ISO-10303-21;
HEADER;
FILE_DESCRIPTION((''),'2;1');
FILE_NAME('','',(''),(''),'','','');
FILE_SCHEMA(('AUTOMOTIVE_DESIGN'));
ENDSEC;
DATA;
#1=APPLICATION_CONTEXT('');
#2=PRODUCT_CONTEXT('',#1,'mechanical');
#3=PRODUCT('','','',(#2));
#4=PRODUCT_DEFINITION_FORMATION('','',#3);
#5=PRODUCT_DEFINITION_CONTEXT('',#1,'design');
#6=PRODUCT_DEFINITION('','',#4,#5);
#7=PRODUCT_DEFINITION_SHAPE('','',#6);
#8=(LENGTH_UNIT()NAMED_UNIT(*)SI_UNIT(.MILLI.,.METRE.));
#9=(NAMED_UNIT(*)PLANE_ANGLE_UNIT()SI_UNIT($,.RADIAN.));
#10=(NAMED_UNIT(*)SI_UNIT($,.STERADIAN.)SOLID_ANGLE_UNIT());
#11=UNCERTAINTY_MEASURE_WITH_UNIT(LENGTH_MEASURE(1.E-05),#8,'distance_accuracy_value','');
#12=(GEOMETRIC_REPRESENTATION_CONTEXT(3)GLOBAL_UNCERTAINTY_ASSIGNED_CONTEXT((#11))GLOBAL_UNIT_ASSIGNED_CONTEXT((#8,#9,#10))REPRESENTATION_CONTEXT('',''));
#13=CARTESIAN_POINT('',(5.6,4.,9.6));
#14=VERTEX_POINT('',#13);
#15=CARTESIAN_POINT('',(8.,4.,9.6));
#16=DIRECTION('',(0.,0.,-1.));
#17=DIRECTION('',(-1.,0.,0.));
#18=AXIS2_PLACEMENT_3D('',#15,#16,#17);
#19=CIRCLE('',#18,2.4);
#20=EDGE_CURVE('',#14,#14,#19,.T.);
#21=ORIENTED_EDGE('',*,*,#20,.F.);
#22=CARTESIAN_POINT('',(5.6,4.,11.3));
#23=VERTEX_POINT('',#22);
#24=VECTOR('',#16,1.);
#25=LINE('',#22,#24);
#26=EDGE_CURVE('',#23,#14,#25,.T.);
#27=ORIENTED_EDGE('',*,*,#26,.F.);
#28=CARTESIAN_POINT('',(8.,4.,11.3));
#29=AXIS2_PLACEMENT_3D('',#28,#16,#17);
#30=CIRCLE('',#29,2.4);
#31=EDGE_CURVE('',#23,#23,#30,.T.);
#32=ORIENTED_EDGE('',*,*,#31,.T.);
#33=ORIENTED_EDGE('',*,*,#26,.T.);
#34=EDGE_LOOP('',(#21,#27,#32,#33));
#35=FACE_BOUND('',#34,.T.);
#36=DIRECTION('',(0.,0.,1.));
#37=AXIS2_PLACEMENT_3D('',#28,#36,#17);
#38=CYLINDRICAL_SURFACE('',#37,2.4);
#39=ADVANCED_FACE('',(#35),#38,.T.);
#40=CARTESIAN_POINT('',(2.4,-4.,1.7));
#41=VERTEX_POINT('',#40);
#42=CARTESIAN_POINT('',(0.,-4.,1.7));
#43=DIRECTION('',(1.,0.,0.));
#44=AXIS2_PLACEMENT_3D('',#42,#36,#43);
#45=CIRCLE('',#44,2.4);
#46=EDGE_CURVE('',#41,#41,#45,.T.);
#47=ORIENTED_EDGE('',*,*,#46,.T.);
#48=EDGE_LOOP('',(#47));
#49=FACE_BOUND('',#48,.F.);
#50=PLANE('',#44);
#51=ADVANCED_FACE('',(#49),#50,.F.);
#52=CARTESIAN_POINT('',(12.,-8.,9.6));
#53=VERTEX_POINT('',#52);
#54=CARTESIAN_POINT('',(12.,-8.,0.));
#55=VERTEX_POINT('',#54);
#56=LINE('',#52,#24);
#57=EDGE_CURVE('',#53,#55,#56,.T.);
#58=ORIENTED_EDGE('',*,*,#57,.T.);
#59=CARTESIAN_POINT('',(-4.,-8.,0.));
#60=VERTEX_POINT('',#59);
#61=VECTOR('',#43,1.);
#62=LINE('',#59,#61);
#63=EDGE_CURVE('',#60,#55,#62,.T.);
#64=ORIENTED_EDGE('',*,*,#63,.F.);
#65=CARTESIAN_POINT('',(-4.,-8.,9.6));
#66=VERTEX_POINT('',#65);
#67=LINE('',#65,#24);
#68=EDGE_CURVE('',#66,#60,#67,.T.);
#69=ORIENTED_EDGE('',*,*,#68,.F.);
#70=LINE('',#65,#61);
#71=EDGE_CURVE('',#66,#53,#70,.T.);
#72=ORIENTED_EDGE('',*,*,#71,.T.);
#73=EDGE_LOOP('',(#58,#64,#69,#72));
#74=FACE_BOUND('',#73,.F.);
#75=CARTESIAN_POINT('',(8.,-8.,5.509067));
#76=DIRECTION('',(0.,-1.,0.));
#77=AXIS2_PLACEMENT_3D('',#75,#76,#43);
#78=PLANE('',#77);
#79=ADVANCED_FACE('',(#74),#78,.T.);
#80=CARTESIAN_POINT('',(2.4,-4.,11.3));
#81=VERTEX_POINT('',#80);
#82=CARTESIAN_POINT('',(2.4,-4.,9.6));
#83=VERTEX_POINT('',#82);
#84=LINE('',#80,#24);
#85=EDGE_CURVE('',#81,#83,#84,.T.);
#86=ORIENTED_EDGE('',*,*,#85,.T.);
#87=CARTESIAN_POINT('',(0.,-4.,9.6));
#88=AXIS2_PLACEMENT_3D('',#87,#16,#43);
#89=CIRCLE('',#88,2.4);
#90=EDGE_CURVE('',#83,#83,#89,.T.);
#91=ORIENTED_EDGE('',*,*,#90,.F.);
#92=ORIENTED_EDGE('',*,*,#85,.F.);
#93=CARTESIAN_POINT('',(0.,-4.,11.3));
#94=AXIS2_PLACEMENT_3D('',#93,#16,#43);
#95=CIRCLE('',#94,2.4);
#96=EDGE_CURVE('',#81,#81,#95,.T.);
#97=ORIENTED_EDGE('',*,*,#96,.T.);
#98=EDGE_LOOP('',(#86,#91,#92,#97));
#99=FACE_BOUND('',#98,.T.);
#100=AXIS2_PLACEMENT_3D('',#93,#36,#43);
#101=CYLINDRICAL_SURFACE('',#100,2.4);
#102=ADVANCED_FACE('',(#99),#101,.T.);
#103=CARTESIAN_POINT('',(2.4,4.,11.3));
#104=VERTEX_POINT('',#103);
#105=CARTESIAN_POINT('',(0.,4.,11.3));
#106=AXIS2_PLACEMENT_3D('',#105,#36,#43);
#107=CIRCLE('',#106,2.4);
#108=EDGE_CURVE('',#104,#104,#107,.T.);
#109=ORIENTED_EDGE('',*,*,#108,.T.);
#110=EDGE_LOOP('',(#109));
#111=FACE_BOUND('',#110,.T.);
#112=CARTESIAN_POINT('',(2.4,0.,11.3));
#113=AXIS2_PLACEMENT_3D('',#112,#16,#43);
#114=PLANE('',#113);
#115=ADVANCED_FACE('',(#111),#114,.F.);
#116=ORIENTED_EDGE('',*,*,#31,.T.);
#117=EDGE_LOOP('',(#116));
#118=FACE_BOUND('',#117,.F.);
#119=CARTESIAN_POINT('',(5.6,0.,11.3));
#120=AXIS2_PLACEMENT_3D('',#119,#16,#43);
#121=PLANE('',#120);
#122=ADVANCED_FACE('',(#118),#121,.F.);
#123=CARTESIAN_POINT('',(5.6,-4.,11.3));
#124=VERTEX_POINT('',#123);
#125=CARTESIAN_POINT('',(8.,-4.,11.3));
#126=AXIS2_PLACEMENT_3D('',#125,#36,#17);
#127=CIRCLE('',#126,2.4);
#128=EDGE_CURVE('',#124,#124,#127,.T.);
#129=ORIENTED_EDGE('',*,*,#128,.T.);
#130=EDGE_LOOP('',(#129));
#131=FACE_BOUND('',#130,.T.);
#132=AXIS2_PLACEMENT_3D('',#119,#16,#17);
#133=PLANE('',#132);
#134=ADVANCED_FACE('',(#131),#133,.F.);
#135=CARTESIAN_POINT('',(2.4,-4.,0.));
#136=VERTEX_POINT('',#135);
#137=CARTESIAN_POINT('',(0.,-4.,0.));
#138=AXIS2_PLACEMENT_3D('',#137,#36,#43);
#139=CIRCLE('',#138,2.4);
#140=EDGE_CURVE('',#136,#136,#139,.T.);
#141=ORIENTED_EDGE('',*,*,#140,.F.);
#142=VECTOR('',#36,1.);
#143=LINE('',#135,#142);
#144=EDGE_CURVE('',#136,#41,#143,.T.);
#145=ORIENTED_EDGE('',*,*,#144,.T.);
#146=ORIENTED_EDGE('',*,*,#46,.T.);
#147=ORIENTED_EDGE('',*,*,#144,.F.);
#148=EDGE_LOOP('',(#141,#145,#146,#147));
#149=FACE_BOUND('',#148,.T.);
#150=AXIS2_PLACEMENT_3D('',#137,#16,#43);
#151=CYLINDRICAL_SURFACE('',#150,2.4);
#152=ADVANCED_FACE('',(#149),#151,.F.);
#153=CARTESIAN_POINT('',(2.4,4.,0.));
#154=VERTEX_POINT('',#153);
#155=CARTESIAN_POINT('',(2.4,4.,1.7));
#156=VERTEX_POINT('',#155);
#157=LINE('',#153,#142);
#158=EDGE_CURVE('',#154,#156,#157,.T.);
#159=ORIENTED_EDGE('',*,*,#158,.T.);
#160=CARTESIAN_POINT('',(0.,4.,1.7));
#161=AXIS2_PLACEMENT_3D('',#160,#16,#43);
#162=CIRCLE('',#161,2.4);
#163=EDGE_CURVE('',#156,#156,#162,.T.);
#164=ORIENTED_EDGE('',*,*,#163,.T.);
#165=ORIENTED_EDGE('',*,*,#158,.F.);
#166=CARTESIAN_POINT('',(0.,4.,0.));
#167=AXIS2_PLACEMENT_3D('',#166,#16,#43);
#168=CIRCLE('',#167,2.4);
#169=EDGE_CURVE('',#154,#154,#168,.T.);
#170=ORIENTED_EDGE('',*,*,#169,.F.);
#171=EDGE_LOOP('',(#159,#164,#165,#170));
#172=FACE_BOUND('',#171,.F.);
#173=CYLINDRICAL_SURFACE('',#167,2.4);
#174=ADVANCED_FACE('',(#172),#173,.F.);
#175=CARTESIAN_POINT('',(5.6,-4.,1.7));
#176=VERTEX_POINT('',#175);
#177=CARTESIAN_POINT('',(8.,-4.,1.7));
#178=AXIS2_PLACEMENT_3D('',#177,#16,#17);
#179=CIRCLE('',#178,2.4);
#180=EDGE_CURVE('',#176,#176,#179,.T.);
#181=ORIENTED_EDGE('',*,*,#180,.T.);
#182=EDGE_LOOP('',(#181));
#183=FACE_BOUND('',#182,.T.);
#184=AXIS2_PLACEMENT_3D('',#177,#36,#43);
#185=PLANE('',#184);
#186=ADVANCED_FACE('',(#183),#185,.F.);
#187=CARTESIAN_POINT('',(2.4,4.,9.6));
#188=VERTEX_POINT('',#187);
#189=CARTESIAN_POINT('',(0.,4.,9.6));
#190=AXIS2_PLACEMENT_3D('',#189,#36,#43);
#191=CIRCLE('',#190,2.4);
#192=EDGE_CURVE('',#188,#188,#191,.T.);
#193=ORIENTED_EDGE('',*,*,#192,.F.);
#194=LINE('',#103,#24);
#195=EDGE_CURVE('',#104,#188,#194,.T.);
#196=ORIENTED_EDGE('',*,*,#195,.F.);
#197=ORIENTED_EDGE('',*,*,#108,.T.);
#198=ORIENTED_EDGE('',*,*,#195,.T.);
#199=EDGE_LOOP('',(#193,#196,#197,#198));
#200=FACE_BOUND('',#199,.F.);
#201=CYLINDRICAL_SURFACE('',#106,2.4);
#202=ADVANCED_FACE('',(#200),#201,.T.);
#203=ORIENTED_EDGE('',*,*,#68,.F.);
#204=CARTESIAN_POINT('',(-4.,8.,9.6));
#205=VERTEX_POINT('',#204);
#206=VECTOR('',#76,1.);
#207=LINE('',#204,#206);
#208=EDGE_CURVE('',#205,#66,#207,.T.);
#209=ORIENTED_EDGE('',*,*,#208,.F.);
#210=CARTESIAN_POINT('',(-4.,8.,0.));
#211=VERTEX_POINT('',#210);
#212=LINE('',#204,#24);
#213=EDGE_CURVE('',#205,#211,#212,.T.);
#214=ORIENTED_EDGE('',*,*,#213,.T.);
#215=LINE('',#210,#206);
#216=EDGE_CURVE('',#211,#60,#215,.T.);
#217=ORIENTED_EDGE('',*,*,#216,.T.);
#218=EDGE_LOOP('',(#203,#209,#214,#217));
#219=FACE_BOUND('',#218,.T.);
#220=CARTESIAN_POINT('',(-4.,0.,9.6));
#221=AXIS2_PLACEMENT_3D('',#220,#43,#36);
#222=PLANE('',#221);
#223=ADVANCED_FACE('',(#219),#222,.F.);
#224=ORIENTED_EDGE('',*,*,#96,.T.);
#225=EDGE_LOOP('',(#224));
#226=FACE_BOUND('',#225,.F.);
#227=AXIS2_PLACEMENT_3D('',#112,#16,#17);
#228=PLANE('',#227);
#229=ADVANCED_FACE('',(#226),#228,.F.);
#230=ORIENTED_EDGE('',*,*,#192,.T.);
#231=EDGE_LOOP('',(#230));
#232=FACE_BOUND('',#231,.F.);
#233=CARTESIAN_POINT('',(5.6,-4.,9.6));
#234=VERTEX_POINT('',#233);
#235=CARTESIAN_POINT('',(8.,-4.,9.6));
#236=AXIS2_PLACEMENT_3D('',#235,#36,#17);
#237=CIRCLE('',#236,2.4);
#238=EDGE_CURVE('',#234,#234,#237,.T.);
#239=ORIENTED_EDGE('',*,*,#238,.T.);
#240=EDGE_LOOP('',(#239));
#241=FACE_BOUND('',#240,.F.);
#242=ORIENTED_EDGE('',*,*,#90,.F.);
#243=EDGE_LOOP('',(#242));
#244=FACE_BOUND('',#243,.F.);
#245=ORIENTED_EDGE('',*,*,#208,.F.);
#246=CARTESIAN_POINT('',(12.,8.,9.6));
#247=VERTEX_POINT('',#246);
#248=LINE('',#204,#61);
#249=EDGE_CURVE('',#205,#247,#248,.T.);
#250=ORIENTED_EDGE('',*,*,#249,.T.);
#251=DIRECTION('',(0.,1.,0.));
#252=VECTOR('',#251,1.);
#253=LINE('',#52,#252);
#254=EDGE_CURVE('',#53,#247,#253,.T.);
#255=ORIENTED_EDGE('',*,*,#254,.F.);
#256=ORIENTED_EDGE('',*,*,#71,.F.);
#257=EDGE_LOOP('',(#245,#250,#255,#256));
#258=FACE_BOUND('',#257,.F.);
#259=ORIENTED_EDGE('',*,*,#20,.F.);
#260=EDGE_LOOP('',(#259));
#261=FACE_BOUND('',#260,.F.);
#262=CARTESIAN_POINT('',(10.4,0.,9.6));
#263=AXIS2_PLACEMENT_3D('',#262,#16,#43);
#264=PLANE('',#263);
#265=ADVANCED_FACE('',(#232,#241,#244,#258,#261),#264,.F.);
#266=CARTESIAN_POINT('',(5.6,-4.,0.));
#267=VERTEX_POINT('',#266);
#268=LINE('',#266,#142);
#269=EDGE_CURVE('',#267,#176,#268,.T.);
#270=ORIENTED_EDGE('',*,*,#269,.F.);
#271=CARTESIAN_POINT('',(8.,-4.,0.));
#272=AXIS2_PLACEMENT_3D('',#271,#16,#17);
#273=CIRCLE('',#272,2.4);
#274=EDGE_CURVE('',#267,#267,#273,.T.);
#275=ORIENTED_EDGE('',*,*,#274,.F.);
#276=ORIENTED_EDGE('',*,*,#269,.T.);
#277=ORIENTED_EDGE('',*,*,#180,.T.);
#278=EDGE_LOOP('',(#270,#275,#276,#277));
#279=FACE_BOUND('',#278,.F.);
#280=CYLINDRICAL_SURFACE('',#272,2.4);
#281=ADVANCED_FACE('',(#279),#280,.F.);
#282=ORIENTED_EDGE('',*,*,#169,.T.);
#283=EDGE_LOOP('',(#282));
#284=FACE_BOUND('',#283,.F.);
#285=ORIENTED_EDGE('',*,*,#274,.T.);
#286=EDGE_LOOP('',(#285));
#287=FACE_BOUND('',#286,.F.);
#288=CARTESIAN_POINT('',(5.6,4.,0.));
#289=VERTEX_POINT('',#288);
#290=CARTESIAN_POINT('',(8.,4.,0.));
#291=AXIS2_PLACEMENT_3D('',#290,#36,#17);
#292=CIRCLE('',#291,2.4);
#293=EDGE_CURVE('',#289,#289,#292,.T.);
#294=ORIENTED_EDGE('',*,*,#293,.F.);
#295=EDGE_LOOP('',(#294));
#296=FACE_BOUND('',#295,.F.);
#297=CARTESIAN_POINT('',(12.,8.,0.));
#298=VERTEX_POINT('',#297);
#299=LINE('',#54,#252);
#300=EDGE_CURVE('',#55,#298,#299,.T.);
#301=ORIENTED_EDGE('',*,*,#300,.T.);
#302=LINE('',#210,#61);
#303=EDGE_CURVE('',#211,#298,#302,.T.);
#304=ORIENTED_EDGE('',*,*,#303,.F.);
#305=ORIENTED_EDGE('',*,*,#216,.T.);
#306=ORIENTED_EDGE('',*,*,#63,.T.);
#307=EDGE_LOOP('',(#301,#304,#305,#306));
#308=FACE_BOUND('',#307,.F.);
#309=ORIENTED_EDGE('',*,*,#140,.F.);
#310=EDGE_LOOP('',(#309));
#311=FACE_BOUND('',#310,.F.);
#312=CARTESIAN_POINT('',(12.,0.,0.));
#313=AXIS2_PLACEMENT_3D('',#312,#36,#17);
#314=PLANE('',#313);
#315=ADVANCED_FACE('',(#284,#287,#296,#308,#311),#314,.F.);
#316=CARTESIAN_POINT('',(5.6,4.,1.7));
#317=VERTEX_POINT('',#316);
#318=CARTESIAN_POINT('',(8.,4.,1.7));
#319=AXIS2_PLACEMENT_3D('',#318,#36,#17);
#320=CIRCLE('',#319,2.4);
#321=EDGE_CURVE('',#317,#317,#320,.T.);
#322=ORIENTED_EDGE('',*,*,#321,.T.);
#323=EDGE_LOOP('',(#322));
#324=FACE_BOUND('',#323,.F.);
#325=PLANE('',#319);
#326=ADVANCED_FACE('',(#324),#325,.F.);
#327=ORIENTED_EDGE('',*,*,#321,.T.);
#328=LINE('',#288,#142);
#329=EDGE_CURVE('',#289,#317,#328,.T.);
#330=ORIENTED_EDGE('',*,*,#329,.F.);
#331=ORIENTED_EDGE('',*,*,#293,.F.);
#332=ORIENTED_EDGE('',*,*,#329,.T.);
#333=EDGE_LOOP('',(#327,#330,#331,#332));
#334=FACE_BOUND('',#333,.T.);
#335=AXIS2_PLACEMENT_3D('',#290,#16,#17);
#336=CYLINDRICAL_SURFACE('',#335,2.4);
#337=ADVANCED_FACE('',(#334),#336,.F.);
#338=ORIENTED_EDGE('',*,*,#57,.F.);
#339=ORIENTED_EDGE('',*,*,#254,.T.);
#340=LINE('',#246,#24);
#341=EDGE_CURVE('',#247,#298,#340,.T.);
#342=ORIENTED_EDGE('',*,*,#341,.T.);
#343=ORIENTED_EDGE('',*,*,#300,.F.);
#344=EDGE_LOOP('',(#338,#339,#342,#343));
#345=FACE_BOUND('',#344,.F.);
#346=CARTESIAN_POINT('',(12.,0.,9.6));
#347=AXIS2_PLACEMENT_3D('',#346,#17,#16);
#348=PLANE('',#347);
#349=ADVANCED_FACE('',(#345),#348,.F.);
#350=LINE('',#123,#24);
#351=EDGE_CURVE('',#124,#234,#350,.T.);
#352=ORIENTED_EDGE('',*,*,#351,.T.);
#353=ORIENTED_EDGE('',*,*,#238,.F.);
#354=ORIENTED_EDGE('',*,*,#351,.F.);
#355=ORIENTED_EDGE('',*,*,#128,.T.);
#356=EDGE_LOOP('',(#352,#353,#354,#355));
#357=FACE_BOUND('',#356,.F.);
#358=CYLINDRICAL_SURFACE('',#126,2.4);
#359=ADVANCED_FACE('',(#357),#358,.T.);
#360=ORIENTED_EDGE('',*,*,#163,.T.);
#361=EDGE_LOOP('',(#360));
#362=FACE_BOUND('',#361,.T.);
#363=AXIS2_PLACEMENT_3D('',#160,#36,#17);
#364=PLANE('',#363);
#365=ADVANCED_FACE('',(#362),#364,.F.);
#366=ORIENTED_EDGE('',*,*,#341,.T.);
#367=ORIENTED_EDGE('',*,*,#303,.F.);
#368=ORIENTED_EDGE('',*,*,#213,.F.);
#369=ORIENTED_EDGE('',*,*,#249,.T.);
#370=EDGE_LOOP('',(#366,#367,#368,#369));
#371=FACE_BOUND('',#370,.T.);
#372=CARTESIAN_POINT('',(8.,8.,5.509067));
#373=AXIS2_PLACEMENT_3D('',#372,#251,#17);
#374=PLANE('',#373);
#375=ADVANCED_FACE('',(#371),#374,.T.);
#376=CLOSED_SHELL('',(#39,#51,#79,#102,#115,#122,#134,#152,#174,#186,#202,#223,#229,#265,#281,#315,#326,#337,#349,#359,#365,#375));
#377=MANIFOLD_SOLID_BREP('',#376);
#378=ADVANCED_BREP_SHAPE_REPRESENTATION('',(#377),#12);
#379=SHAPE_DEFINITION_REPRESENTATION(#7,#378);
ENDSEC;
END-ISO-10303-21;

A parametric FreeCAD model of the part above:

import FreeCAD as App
import Part
import Sketcher
from FreeCAD import Vector
Q = App.Units.Quantity


def add_polygon(sketch, points):
    """Adds a closed chain of lines whose ends are joined by coincident constraints."""
    first, n = sketch.GeometryCount, len(points)
    for a, b in zip(points, points[1:] + points[:1]):
        sketch.addGeometry(Part.LineSegment(App.Vector(*a, 0), App.Vector(*b, 0)), False)
    for i in range(n):
        sketch.addConstraint(Sketcher.Constraint("Coincident", first + i, 2, first + (i + 1) % n, 1))

doc = App.newDocument("Part")
body = doc.addObject("PartDesign::Body", "Body")

# Sketch on XZ plane
sketch1 = doc.addObject("Sketcher::SketchObject", "Sketch")
body.addObject(sketch1)
sketch1.AttachmentSupport = (doc.XZ_Plane, [""])
sketch1.MapMode = "FlatFace"
add_polygon(sketch1, [(-2.4, 9.6), (-4, 9.6), (-4, 0), (4, 0), (4, 9.6), (2.4, 9.6), (2.4, 11.3), (-2.4, 11.3)])  # lines 0-7
sketch1.addConstraint([
    Sketcher.Constraint("Horizontal", 0),
    Sketcher.Constraint("Vertical", 1),
    Sketcher.Constraint("Horizontal", 2),
    Sketcher.Constraint("Vertical", 3),
    Sketcher.Constraint("Horizontal", 4),
    Sketcher.Constraint("Vertical", 5),
    Sketcher.Constraint("Horizontal", 6),
    Sketcher.Constraint("Vertical", 7),
    Sketcher.Constraint("Symmetric", 1, 2, 2, 2, -1, 1),
    Sketcher.Constraint("Symmetric", 4, 2, 7, 2, -2),
    Sketcher.Constraint("DistanceX", 2, 1, 2, 2, Q("8 mm")),
    Sketcher.Constraint("DistanceX", 0, 2, 0, 1, Q("1.6 mm")),
    Sketcher.Constraint("DistanceY", 1, 2, 1, 1, Q("9.6 mm")),
    Sketcher.Constraint("DistanceY", 5, 1, 5, 2, Q("1.7 mm")),
])
pad1 = doc.addObject("PartDesign::Pad", "Pad")
body.addObject(pad1)
pad1.Profile = sketch1
pad1.Length = 8

# Sketch on XY plane
sketch2 = doc.addObject("Sketcher::SketchObject", "Sketch001")
body.addObject(sketch2)
sketch2.AttachmentSupport = (doc.XY_Plane, [""])
sketch2.MapMode = "FlatFace"
sketch2.AttachmentOffset = App.Placement(Vector(0, 0, 11.3), App.Rotation())
add_polygon(sketch2, [(-4, 0), (-4, -8), (4, -8), (4, 0)])  # lines 0-3
sketch2.addGeometry(Part.Circle(Vector(0, -4, 0), Vector(0, 0, 1), 2.4), False)  # 4
sketch2.addConstraint([
    Sketcher.Constraint("Vertical", 0),
    Sketcher.Constraint("Horizontal", 1),
    Sketcher.Constraint("Vertical", 2),
    Sketcher.Constraint("Horizontal", 3),
    Sketcher.Constraint("Symmetric", 2, 2, 3, 2, -1, 1),
    Sketcher.Constraint("PointOnObject", 4, 3, -2),
    Sketcher.Constraint("Equal", 3, 0),
    Sketcher.Constraint("Diameter", 4, Q("4.8 mm")),
    Sketcher.Constraint("DistanceX", 1, 1, 1, 2, Q("8 mm")),
    Sketcher.Constraint("DistanceY", 4, 3, -1, 1, Q("4 mm")),
])
pocket1 = doc.addObject("PartDesign::Pocket", "Pocket")
body.addObject(pocket1)
pocket1.Profile = sketch2
pocket1.Length = 1.7

# Sketch on XY plane
sketch3 = doc.addObject("Sketcher::SketchObject", "Sketch002")
body.addObject(sketch3)
sketch3.AttachmentSupport = (doc.XY_Plane, [""])
sketch3.MapMode = "FlatFace"
sketch3.addGeometry(Part.Circle(Vector(0, -4, 0), Vector(0, 0, 1), 2.4), False)
sketch3.addConstraint([
    Sketcher.Constraint("PointOnObject", 0, 3, -2),
    Sketcher.Constraint("Diameter", 0, Q("4.8 mm")),
    Sketcher.Constraint("DistanceY", 0, 3, -1, 1, Q("4 mm")),
])
pocket2 = doc.addObject("PartDesign::Pocket", "Pocket001")
body.addObject(pocket2)
pocket2.Profile = sketch3
pocket2.Length = 1.7
pocket2.Reversed = True
body2 = doc.addObject("PartDesign::Body", "Body001")
doc.recompute()

body2.BaseFeature = body
doc.recompute()

mirroring = doc.addObject("Part::Mirroring", "Mirroring")
mirroring.Source = body
mirroring.Base = Vector(4, 0, 0)
mirroring.Normal = Vector(1, 0, 0)
body3 = doc.addObject("PartDesign::Body", "Body002")
body3.BaseFeature = mirroring
boolean = doc.addObject("PartDesign::Boolean", "Boolean")
body2.addObject(boolean)
boolean.Type = "Fuse"
boolean.addObjects([body3])
doc.recompute()
body4 = doc.addObject("PartDesign::Body", "Body003")
doc.recompute()

body4.BaseFeature = body2
doc.recompute()

mirroring2 = doc.addObject("Part::Mirroring", "Mirroring001")
mirroring2.Source = body2
mirroring2.Base = Vector(0, 0, 0)
mirroring2.Normal = Vector(0, -1, 0)
body5 = doc.addObject("PartDesign::Body", "Body004")
body5.BaseFeature = mirroring2
boolean2 = doc.addObject("PartDesign::Boolean", "Boolean001")
body4.addObject(boolean2)
boolean2.Type = "Fuse"
boolean2.addObjects([body5])
doc.recompute()
mirroring.Visibility = False
mirroring2.Visibility = False

doc.recompute()
